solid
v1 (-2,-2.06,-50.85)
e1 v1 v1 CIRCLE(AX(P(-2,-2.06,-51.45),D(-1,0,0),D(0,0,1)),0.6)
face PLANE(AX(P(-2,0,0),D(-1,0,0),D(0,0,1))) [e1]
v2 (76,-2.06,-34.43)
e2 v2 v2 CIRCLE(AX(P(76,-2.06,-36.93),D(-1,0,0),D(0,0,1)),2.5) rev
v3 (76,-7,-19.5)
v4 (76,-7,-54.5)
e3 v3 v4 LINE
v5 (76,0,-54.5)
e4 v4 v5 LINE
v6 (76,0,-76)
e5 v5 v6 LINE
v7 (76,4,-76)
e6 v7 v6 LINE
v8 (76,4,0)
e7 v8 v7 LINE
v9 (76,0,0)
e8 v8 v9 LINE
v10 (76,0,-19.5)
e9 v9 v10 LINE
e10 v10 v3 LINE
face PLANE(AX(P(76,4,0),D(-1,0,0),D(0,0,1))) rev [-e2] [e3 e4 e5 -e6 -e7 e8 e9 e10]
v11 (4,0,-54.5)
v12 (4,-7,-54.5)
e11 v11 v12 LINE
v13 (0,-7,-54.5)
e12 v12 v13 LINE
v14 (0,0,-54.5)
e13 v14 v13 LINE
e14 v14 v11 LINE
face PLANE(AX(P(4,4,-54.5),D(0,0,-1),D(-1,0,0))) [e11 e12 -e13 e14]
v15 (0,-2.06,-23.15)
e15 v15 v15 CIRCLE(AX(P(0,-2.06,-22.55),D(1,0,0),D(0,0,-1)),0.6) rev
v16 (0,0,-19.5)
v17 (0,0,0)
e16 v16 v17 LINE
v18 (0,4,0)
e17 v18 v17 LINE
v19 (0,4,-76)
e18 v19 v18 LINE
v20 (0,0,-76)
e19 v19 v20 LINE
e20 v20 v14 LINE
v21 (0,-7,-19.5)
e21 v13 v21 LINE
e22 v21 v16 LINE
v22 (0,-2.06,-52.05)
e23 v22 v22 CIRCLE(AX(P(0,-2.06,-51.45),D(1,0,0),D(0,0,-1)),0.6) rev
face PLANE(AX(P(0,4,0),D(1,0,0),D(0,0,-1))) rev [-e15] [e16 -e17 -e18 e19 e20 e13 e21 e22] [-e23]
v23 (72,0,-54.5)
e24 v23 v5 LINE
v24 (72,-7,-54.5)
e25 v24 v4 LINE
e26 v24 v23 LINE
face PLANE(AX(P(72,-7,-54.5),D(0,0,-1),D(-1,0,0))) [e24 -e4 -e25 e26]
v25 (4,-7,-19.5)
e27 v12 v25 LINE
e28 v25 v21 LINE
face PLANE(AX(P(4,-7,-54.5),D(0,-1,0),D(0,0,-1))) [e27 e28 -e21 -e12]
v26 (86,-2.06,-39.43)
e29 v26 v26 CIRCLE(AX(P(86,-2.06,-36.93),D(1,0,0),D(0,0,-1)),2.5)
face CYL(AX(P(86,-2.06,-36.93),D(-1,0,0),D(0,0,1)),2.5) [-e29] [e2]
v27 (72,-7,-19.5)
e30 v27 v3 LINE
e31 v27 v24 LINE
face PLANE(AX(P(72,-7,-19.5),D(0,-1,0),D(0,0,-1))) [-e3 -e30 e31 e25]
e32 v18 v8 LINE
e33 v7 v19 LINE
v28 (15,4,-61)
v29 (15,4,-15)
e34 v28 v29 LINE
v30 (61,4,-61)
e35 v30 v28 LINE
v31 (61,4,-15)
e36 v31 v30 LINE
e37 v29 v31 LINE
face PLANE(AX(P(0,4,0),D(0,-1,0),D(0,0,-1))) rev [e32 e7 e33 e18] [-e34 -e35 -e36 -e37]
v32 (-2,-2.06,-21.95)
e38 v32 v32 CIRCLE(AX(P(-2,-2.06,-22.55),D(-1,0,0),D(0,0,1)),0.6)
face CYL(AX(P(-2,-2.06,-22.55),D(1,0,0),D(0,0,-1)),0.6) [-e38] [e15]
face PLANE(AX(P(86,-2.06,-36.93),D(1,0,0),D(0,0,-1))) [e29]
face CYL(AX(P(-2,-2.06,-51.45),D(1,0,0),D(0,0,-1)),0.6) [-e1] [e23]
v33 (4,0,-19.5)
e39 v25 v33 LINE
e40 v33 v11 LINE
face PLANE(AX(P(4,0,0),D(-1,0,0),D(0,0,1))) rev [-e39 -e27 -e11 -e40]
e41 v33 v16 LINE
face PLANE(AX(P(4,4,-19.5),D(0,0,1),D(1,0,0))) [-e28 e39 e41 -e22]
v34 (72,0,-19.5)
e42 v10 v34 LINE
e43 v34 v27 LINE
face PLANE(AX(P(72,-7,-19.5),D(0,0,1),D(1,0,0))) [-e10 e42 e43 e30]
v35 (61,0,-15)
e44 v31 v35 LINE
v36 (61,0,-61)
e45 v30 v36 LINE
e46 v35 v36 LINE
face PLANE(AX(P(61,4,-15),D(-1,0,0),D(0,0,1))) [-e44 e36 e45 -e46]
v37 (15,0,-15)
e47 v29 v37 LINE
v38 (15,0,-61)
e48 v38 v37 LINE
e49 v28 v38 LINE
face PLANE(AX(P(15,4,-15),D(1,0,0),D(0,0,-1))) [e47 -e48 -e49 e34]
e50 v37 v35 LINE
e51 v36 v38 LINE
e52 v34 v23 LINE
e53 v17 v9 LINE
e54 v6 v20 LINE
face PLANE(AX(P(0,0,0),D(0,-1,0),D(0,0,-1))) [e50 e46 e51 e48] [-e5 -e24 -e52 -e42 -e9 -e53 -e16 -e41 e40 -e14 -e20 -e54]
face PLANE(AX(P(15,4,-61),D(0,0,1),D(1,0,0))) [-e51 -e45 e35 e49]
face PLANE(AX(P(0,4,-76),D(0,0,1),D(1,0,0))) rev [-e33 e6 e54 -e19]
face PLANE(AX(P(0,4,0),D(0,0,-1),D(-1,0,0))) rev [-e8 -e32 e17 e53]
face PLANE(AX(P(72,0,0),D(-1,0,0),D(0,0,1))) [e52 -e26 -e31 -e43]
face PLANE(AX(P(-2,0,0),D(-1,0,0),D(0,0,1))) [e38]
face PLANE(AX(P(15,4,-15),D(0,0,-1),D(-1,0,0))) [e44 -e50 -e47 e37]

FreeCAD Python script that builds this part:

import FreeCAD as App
import Part
import Sketcher

V = App.Vector
Q = App.Units.Quantity

doc = App.newDocument("Part")
params = doc.addObject("Spreadsheet::Sheet", "Params")
for row, (alias, value) in enumerate([
    ("sketch1_width", "76 mm"),
    ("sketch1_width2", "46 mm"),
    ("pad1_length", "4 mm"),
    ("sketch2_diameter", "1.2 mm"),
    ("pad2_length", "2 mm"),
    ("sketch3_diameter", "1.2 mm"),
    ("pad3_length", "2 mm"),
    ("sketch4_width", "11 mm"),
    ("sketch4_height", "35 mm"),
    ("pad4_length", "4 mm"),
    ("sketch5_width", "11 mm"),
    ("sketch5_height", "35 mm"),
    ("pad5_length", "4 mm"),
    ("sketch6_diameter", "5 mm"),
    ("pad6_length", "10 mm"),
], start=1):
    params.set(f"A{row}", alias)
    params.set(f"B{row}", "=" + value)
    params.setAlias(f"B{row}", alias)

body = doc.addObject("PartDesign::Body", "Body")

# Sketch on XZ plane
sketch1 = doc.addObject("Sketcher::SketchObject", "Sketch")
body.addObject(sketch1)
sketch1.AttachmentSupport = (doc.XZ_Plane, [""])
sketch1.MapMode = "FlatFace"
sketch1.addGeometry([
    Part.LineSegment(V(0, -76, 0), V(0, 0, 0)),  # 0
    Part.LineSegment(V(0, 0, 0), V(76, 0, 0)),  # 1
    Part.LineSegment(V(76, 0, 0), V(76, -76, 0)),  # 2
    Part.LineSegment(V(76, -76, 0), V(0, -76, 0)),  # 3
    Part.LineSegment(V(61, -15, 0), V(15, -15, 0)),  # 4
    Part.LineSegment(V(15, -15, 0), V(15, -61, 0)),  # 5
    Part.LineSegment(V(15, -61, 0), V(61, -61, 0)),  # 6
    Part.LineSegment(V(61, -61, 0), V(61, -15, 0)),  # 7
], False)
sketch1.addConstraint([
    Sketcher.Constraint("Coincident", 0, 2, 1, 1),
    Sketcher.Constraint("Coincident", 1, 2, 2, 1),
    Sketcher.Constraint("Coincident", 2, 2, 3, 1),
    Sketcher.Constraint("Coincident", 3, 2, 0, 1),
    Sketcher.Constraint("Coincident", 4, 2, 5, 1),
    Sketcher.Constraint("Coincident", 5, 2, 6, 1),
    Sketcher.Constraint("Coincident", 6, 2, 7, 1),
    Sketcher.Constraint("Coincident", 7, 2, 4, 1),
    Sketcher.Constraint("Vertical", 0),
    Sketcher.Constraint("Horizontal", 1),
    Sketcher.Constraint("Vertical", 2),
    Sketcher.Constraint("Horizontal", 3),
    Sketcher.Constraint("Horizontal", 4),
    Sketcher.Constraint("Vertical", 5),
    Sketcher.Constraint("Horizontal", 6),
    Sketcher.Constraint("Vertical", 7),
    Sketcher.Constraint("Coincident", 0, 2, -1, 1),
    Sketcher.Constraint("Equal", 3, 0),
    Sketcher.Constraint("Equal", 6, 5),
    Sketcher.Constraint("DistanceX", 1, 1, 1, 2, Q("76 mm")),
    Sketcher.Constraint("DistanceX", 4, 2, 4, 1, Q("46 mm")),
    Sketcher.Constraint("DistanceX", -1, 1, 4, 2, Q("15 mm")),
    Sketcher.Constraint("DistanceY", 4, 2, -1, 1, Q("15 mm")),
])
sketch1.setExpression("Constraints[19]", "Params.sketch1_width")
sketch1.setExpression("Constraints[20]", "Params.sketch1_width2")
pad1 = doc.addObject("PartDesign::Pad", "Pad")
body.addObject(pad1)
pad1.Profile = sketch1
pad1.setExpression("Length", "Params.pad1_length")
pad1.Reversed = True
body2 = doc.addObject("PartDesign::Body", "Body001")

# Sketch on YZ plane
sketch2 = doc.addObject("Sketcher::SketchObject", "Sketch001")
body2.addObject(sketch2)
sketch2.AttachmentSupport = (doc.getObject("YZ_Plane001"), [""])
sketch2.MapMode = "FlatFace"
sketch2.addGeometry(Part.Circle(V(-2.06, -51.45, 0), V(0, 0, 1), 0.6), False)
sketch2.addConstraint([
    Sketcher.Constraint("Diameter", 0, Q("1.2 mm")),
    Sketcher.Constraint("DistanceX", 0, 3, -1, 1, Q("2.06 mm")),
    Sketcher.Constraint("DistanceY", 0, 3, -1, 1, Q("51.45 mm")),
])
sketch2.setExpression("Constraints[0]", "Params.sketch2_diameter")
pad2 = doc.addObject("PartDesign::Pad", "Pad001")
body2.addObject(pad2)
pad2.Profile = sketch2
pad2.setExpression("Length", "Params.pad2_length")
pad2.Reversed = True
body3 = doc.addObject("PartDesign::Body", "Body002")

# Sketch on YZ plane
sketch3 = doc.addObject("Sketcher::SketchObject", "Sketch002")
body3.addObject(sketch3)
sketch3.AttachmentSupport = (doc.getObject("YZ_Plane002"), [""])
sketch3.MapMode = "FlatFace"
sketch3.addGeometry(Part.Circle(V(-2.06, -22.55, 0), V(0, 0, 1), 0.6), False)
sketch3.addConstraint([
    Sketcher.Constraint("Diameter", 0, Q("1.2 mm")),
    Sketcher.Constraint("DistanceX", 0, 3, -1, 1, Q("2.06 mm")),
    Sketcher.Constraint("DistanceY", 0, 3, -1, 1, Q("22.55 mm")),
])
sketch3.setExpression("Constraints[0]", "Params.sketch3_diameter")
pad3 = doc.addObject("PartDesign::Pad", "Pad002")
body3.addObject(pad3)
pad3.Profile = sketch3
pad3.setExpression("Length", "Params.pad3_length")
pad3.Reversed = True
body.AllowCompound = True
doc.recompute()

boolean = doc.addObject("PartDesign::Boolean", "Boolean")
body.addObject(boolean)
boolean.Type = "Fuse"
boolean.addObjects([body2])
doc.recompute()

boolean2 = doc.addObject("PartDesign::Boolean", "Boolean001")
body.addObject(boolean2)
boolean2.Type = "Fuse"
boolean2.addObjects([body3])

# Sketch on YZ plane
sketch4 = doc.addObject("Sketcher::SketchObject", "Sketch003")
body.addObject(sketch4)
sketch4.AttachmentSupport = (doc.YZ_Plane, [""])
sketch4.MapMode = "FlatFace"
sketch4.addGeometry([
    Part.LineSegment(V(4, -54.5, 0), V(-7, -54.5, 0)),
    Part.LineSegment(V(-7, -54.5, 0), V(-7, -19.5, 0)),
    Part.LineSegment(V(-7, -19.5, 0), V(4, -19.5, 0)),
    Part.LineSegment(V(4, -19.5, 0), V(4, -54.5, 0)),
], False)
sketch4.addConstraint([
    Sketcher.Constraint("Coincident", 0, 2, 1, 1),
    Sketcher.Constraint("Coincident", 1, 2, 2, 1),
    Sketcher.Constraint("Coincident", 2, 2, 3, 1),
    Sketcher.Constraint("Coincident", 3, 2, 0, 1),
    Sketcher.Constraint("Horizontal", 0),
    Sketcher.Constraint("Vertical", 1),
    Sketcher.Constraint("Horizontal", 2),
    Sketcher.Constraint("Vertical", 3),
    Sketcher.Constraint("DistanceX", 0, 2, 0, 1, Q("11 mm")),
    Sketcher.Constraint("DistanceY", 1, 1, 1, 2, Q("35 mm")),
    Sketcher.Constraint("DistanceX", 0, 2, -1, 1, Q("7 mm")),
    Sketcher.Constraint("DistanceY", 0, 2, -1, 1, Q("54.5 mm")),
])
sketch4.setExpression("Constraints[8]", "Params.sketch4_width")
sketch4.setExpression("Constraints[9]", "Params.sketch4_height")
pad4 = doc.addObject("PartDesign::Pad", "Pad003")
body.addObject(pad4)
pad4.Profile = sketch4
pad4.setExpression("Length", "Params.pad4_length")

# Sketch on YZ plane
sketch5 = doc.addObject("Sketcher::SketchObject", "Sketch004")
body.addObject(sketch5)
sketch5.AttachmentSupport = (doc.YZ_Plane, [""])
sketch5.MapMode = "FlatFace"
sketch5.AttachmentOffset = App.Placement(V(0, 0, 76), App.Rotation())
sketch5.addGeometry([
    Part.LineSegment(V(4, -19.5, 0), V(-7, -19.5, 0)),
    Part.LineSegment(V(-7, -19.5, 0), V(-7, -54.5, 0)),
    Part.LineSegment(V(-7, -54.5, 0), V(4, -54.5, 0)),
    Part.LineSegment(V(4, -54.5, 0), V(4, -19.5, 0)),
], False)
sketch5.addConstraint([
    Sketcher.Constraint("Coincident", 0, 2, 1, 1),
    Sketcher.Constraint("Coincident", 1, 2, 2, 1),
    Sketcher.Constraint("Coincident", 2, 2, 3, 1),
    Sketcher.Constraint("Coincident", 3, 2, 0, 1),
    Sketcher.Constraint("Horizontal", 0),
    Sketcher.Constraint("Vertical", 1),
    Sketcher.Constraint("Horizontal", 2),
    Sketcher.Constraint("Vertical", 3),
    Sketcher.Constraint("DistanceX", 0, 2, 0, 1, Q("11 mm")),
    Sketcher.Constraint("DistanceY", 1, 2, 1, 1, Q("35 mm")),
    Sketcher.Constraint("DistanceX", 0, 2, -1, 1, Q("7 mm")),
    Sketcher.Constraint("DistanceY", 0, 2, -1, 1, Q("19.5 mm")),
])
sketch5.setExpression("Constraints[8]", "Params.sketch5_width")
sketch5.setExpression("Constraints[9]", "Params.sketch5_height")
pad5 = doc.addObject("PartDesign::Pad", "Pad004")
body.addObject(pad5)
pad5.Profile = sketch5
pad5.setExpression("Length", "Params.pad5_length")
pad5.Reversed = True

# Sketch on YZ plane
sketch6 = doc.addObject("Sketcher::SketchObject", "Sketch005")
body.addObject(sketch6)
sketch6.AttachmentSupport = (doc.YZ_Plane, [""])
sketch6.MapMode = "FlatFace"
sketch6.AttachmentOffset = App.Placement(V(0, 0, 76), App.Rotation())
sketch6.addGeometry(Part.Circle(V(-2.06, -36.93, 0), V(0, 0, 1), 2.5), False)
sketch6.addConstraint([
    Sketcher.Constraint("Diameter", 0, Q("5 mm")),
    Sketcher.Constraint("DistanceX", 0, 3, -1, 1, Q("2.06 mm")),
    Sketcher.Constraint("DistanceY", 0, 3, -1, 1, Q("36.93 mm")),
])
sketch6.setExpression("Constraints[0]", "Params.sketch6_diameter")
pad6 = doc.addObject("PartDesign::Pad", "Pad005")
body.addObject(pad6)
pad6.Profile = sketch6
pad6.setExpression("Length", "Params.pad6_length")

doc.recompute()
